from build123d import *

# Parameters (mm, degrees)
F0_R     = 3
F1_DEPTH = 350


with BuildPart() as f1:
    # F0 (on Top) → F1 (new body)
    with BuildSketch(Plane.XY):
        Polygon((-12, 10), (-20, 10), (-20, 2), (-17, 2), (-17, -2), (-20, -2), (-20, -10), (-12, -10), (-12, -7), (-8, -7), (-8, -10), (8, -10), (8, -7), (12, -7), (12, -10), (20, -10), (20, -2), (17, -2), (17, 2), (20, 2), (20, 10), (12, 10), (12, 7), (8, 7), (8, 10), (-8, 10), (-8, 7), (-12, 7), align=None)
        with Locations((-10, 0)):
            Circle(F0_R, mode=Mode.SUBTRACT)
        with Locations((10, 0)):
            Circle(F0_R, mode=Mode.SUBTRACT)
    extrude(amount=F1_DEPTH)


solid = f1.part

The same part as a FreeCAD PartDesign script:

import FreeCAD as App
import Part
import Sketcher
Q = App.Units.Quantity


def add_polygon(sketch, points):
    """Adds a closed chain of lines whose ends are joined by coincident constraints."""
    first, n = sketch.GeometryCount, len(points)
    for a, b in zip(points, points[1:] + points[:1]):
        sketch.addGeometry(Part.LineSegment(App.Vector(*a, 0), App.Vector(*b, 0)), False)
    for i in range(n):
        sketch.addConstraint(Sketcher.Constraint("Coincident", first + i, 2, first + (i + 1) % n, 1))

doc = App.newDocument("Part")
body = doc.addObject("PartDesign::Body", "Body")

sketch1 = body.newObject("Sketcher::SketchObject", "Sketch")
sketch1.AttachmentSupport = (doc.getObject("XY_Plane"), [""])
sketch1.MapMode = "FlatFace"
add_polygon(sketch1, [(-12, 10), (-20, 10), (-20, 2), (-17, 2), (-17, -2), (-20, -2), (-20, -10), (-12, -10), (-12, -7), (-8, -7), (-8, -10), (8, -10), (8, -7), (12, -7), (12, -10), (20, -10), (20, -2), (17, -2), (17, 2), (20, 2), (20, 10), (12, 10), (12, 7), (8, 7), (8, 10), (-8, 10), (-8, 7), (-12, 7)])
sketch1.addGeometry(Part.Circle(App.Vector(-10, 0, 0), App.Vector(0, 0, 1), 3), False)
sketch1.addGeometry(Part.Circle(App.Vector(10, 0, 0), App.Vector(0, 0, 1), 3), False)
sketch1.addConstraint([
    Sketcher.Constraint("Horizontal", 0),
    Sketcher.Constraint("Vertical", 1),
    Sketcher.Constraint("Horizontal", 2),
    Sketcher.Constraint("Vertical", 3),
    Sketcher.Constraint("Horizontal", 4),
    Sketcher.Constraint("Vertical", 5),
    Sketcher.Constraint("Horizontal", 6),
    Sketcher.Constraint("Vertical", 7),
    Sketcher.Constraint("Horizontal", 8),
    Sketcher.Constraint("Vertical", 9),
    Sketcher.Constraint("Horizontal", 10),
    Sketcher.Constraint("Vertical", 11),
    Sketcher.Constraint("Horizontal", 12),
    Sketcher.Constraint("Vertical", 13),
    Sketcher.Constraint("Horizontal", 14),
    Sketcher.Constraint("Vertical", 15),
    Sketcher.Constraint("Horizontal", 16),
    Sketcher.Constraint("Vertical", 17),
    Sketcher.Constraint("Horizontal", 18),
    Sketcher.Constraint("Vertical", 19),
    Sketcher.Constraint("Horizontal", 20),
    Sketcher.Constraint("Vertical", 21),
    Sketcher.Constraint("Horizontal", 22),
    Sketcher.Constraint("Vertical", 23),
    Sketcher.Constraint("Horizontal", 24),
    Sketcher.Constraint("Vertical", 25),
    Sketcher.Constraint("Horizontal", 26),
    Sketcher.Constraint("Vertical", 27),
    Sketcher.Constraint("Equal", 28, 29),
    Sketcher.Constraint("Symmetric", 28, 3, 29, 3, -1, 1),
    Sketcher.Constraint("Symmetric", 0, 2, 14, 2, -1, 1),
    Sketcher.Constraint("Symmetric", 2, 2, 16, 2, -1, 1),
    Sketcher.Constraint("Symmetric", 4, 2, 18, 2, -1, 1),
    Sketcher.Constraint("Symmetric", 6, 2, 20, 2, -1, 1),
    Sketcher.Constraint("Symmetric", 8, 2, 22, 2, -1, 1),
    Sketcher.Constraint("Symmetric", 10, 2, 24, 2, -1, 1),
    Sketcher.Constraint("Symmetric", 12, 2, 26, 2, -1, 1),
    Sketcher.Constraint("Symmetric", 8, 2, 11, 2, -2),
    Sketcher.Constraint("Symmetric", 6, 2, 13, 2, -2),
    Sketcher.Constraint("Symmetric", 4, 2, 15, 2, -2),
    Sketcher.Constraint("PointOnObject", 28, 3, -1),
    Sketcher.Constraint("Horizontal", 6, 2, 9, 2),
    Sketcher.Constraint("Equal", 20, 1),
    Sketcher.Constraint("Equal", 26, 3),
    Sketcher.Constraint("Equal", 18, 7),
    Sketcher.Constraint("Diameter", 28, Q("6 mm")),
    Sketcher.Constraint("DistanceX", 0, 2, 0, 1, Q("8 mm")),
    Sketcher.Constraint("DistanceX", 2, 1, 2, 2, Q("3 mm")),
    Sketcher.Constraint("DistanceX", 8, 1, 8, 2, Q("4 mm")),
    Sketcher.Constraint("DistanceX", 10, 1, 10, 2, Q("16 mm")),
    Sketcher.Constraint("DistanceX", 28, 3, -1, 1, Q("10 mm")),
])
pad1 = body.newObject("PartDesign::Pad", "Pad")
pad1.Profile = sketch1
pad1.Length = 350

doc.recompute()
